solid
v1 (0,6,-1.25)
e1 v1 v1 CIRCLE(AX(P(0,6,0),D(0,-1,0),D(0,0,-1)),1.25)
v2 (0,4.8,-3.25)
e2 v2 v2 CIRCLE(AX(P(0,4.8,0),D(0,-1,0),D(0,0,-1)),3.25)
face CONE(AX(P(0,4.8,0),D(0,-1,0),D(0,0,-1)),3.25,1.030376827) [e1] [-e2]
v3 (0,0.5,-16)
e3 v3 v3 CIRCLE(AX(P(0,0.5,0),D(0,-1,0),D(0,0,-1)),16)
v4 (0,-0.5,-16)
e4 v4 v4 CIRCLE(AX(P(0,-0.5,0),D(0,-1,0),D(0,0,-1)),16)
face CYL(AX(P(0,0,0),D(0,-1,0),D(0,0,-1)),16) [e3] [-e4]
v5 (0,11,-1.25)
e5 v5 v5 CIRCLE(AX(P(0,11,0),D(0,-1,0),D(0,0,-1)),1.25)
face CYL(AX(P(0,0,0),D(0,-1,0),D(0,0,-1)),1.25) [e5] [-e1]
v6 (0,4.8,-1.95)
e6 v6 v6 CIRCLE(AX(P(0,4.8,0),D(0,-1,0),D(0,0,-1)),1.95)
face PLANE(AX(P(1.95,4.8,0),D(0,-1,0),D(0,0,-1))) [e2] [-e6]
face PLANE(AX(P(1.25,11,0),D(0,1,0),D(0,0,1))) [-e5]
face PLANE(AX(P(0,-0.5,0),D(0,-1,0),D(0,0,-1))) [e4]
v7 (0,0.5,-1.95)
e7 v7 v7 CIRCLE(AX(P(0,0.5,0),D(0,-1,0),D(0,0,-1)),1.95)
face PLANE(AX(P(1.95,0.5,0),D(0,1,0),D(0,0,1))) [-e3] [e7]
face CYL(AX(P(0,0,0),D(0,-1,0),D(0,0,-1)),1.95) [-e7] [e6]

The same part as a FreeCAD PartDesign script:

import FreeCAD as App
import Part
import Sketcher

V = App.Vector
Q = App.Units.Quantity

doc = App.newDocument("Part")
body = doc.addObject("PartDesign::Body", "Body")

# Sketch on XY plane
sketch1 = body.newObject("Sketcher::SketchObject", "Sketch")
sketch1.AttachmentSupport = (doc.getObject("XY_Plane"), [""])
sketch1.MapMode = "FlatFace"
sketch1.addGeometry(Part.LineSegment(V(1.9, 0.5, 0), V(1.9, 4.8, 0)), False)
sketch1.addGeometry(Part.LineSegment(V(1.9, 4.8, 0), V(3.2, 4.8, 0)), False)
sketch1.addGeometry(Part.LineSegment(V(3.2, 4.8, 0), V(1.2, 6, 0)), False)
sketch1.addGeometry(Part.LineSegment(V(1.2, 6, 0), V(1.2, 11, 0)), False)
sketch1.addGeometry(Part.LineSegment(V(1.2, 11, 0), V(0, 11, 0)), False)
sketch1.addGeometry(Part.LineSegment(V(0, 11, 0), V(0, -0.5, 0)), False)
sketch1.addGeometry(Part.LineSegment(V(0, -0.5, 0), V(16, -0.5, 0)), False)
sketch1.addGeometry(Part.LineSegment(V(16, -0.5, 0), V(16, 0.5, 0)), False)
sketch1.addGeometry(Part.LineSegment(V(16, 0.5, 0), V(1.9, 0.5, 0)), False)
sketch1.addConstraint(Sketcher.Constraint("Coincident", 0, 2, 1, 1))
sketch1.addConstraint(Sketcher.Constraint("Coincident", 1, 2, 2, 1))
sketch1.addConstraint(Sketcher.Constraint("Coincident", 2, 2, 3, 1))
sketch1.addConstraint(Sketcher.Constraint("Coincident", 3, 2, 4, 1))
sketch1.addConstraint(Sketcher.Constraint("Coincident", 4, 2, 5, 1))
sketch1.addConstraint(Sketcher.Constraint("Coincident", 5, 2, 6, 1))
sketch1.addConstraint(Sketcher.Constraint("Coincident", 6, 2, 7, 1))
sketch1.addConstraint(Sketcher.Constraint("Coincident", 7, 2, 8, 1))
sketch1.addConstraint(Sketcher.Constraint("Coincident", 8, 2, 0, 1))
sketch1.addConstraint(Sketcher.Constraint("Vertical", 0))
sketch1.addConstraint(Sketcher.Constraint("Horizontal", 1))
sketch1.addConstraint(Sketcher.Constraint("Vertical", 3))
sketch1.addConstraint(Sketcher.Constraint("Horizontal", 4))
sketch1.addConstraint(Sketcher.Constraint("Vertical", 5))
sketch1.addConstraint(Sketcher.Constraint("Horizontal", 6))
sketch1.addConstraint(Sketcher.Constraint("Vertical", 7))
sketch1.addConstraint(Sketcher.Constraint("Horizontal", 8))
sketch1.addConstraint(Sketcher.Constraint("PointOnObject", 4, 2, -2))
sketch1.addConstraint(Sketcher.Constraint("DistanceX", 6, 1, 6, 2, Q("16 mm")))
sketch1.addConstraint(Sketcher.Constraint("DistanceY", 3, 1, 3, 2, Q("5 mm")))
sketch1.addConstraint(Sketcher.Constraint("DistanceY", 7, 1, 7, 2, Q("1 mm")))
sketch1.addConstraint(Sketcher.Constraint("DistanceX", 1, 1, 1, 2, Q("1.3 mm")))
sketch1.addConstraint(Sketcher.Constraint("DistanceY", 0, 1, 0, 2, Q("4.3 mm")))
sketch1.addConstraint(Sketcher.Constraint("DistanceY", 5, 2, 5, 1, Q("11.5 mm")))
sketch1.addConstraint(Sketcher.Constraint("DistanceY", -1, 1, 2, 2, Q("6 mm")))
sketch1.addConstraint(Sketcher.Constraint("DistanceX", 2, 2, 1, 2, Q("2 mm")))
sketch1.addConstraint(Sketcher.Constraint("DistanceX", 4, 2, 4, 1, Q("1.25 mm")))
revolution = body.newObject("PartDesign::Revolution", "Revolution")
revolution.Profile = sketch1
revolution.ReferenceAxis = (sketch1, ["V_Axis"])
revolution.Angle = 360

doc.recompute()
